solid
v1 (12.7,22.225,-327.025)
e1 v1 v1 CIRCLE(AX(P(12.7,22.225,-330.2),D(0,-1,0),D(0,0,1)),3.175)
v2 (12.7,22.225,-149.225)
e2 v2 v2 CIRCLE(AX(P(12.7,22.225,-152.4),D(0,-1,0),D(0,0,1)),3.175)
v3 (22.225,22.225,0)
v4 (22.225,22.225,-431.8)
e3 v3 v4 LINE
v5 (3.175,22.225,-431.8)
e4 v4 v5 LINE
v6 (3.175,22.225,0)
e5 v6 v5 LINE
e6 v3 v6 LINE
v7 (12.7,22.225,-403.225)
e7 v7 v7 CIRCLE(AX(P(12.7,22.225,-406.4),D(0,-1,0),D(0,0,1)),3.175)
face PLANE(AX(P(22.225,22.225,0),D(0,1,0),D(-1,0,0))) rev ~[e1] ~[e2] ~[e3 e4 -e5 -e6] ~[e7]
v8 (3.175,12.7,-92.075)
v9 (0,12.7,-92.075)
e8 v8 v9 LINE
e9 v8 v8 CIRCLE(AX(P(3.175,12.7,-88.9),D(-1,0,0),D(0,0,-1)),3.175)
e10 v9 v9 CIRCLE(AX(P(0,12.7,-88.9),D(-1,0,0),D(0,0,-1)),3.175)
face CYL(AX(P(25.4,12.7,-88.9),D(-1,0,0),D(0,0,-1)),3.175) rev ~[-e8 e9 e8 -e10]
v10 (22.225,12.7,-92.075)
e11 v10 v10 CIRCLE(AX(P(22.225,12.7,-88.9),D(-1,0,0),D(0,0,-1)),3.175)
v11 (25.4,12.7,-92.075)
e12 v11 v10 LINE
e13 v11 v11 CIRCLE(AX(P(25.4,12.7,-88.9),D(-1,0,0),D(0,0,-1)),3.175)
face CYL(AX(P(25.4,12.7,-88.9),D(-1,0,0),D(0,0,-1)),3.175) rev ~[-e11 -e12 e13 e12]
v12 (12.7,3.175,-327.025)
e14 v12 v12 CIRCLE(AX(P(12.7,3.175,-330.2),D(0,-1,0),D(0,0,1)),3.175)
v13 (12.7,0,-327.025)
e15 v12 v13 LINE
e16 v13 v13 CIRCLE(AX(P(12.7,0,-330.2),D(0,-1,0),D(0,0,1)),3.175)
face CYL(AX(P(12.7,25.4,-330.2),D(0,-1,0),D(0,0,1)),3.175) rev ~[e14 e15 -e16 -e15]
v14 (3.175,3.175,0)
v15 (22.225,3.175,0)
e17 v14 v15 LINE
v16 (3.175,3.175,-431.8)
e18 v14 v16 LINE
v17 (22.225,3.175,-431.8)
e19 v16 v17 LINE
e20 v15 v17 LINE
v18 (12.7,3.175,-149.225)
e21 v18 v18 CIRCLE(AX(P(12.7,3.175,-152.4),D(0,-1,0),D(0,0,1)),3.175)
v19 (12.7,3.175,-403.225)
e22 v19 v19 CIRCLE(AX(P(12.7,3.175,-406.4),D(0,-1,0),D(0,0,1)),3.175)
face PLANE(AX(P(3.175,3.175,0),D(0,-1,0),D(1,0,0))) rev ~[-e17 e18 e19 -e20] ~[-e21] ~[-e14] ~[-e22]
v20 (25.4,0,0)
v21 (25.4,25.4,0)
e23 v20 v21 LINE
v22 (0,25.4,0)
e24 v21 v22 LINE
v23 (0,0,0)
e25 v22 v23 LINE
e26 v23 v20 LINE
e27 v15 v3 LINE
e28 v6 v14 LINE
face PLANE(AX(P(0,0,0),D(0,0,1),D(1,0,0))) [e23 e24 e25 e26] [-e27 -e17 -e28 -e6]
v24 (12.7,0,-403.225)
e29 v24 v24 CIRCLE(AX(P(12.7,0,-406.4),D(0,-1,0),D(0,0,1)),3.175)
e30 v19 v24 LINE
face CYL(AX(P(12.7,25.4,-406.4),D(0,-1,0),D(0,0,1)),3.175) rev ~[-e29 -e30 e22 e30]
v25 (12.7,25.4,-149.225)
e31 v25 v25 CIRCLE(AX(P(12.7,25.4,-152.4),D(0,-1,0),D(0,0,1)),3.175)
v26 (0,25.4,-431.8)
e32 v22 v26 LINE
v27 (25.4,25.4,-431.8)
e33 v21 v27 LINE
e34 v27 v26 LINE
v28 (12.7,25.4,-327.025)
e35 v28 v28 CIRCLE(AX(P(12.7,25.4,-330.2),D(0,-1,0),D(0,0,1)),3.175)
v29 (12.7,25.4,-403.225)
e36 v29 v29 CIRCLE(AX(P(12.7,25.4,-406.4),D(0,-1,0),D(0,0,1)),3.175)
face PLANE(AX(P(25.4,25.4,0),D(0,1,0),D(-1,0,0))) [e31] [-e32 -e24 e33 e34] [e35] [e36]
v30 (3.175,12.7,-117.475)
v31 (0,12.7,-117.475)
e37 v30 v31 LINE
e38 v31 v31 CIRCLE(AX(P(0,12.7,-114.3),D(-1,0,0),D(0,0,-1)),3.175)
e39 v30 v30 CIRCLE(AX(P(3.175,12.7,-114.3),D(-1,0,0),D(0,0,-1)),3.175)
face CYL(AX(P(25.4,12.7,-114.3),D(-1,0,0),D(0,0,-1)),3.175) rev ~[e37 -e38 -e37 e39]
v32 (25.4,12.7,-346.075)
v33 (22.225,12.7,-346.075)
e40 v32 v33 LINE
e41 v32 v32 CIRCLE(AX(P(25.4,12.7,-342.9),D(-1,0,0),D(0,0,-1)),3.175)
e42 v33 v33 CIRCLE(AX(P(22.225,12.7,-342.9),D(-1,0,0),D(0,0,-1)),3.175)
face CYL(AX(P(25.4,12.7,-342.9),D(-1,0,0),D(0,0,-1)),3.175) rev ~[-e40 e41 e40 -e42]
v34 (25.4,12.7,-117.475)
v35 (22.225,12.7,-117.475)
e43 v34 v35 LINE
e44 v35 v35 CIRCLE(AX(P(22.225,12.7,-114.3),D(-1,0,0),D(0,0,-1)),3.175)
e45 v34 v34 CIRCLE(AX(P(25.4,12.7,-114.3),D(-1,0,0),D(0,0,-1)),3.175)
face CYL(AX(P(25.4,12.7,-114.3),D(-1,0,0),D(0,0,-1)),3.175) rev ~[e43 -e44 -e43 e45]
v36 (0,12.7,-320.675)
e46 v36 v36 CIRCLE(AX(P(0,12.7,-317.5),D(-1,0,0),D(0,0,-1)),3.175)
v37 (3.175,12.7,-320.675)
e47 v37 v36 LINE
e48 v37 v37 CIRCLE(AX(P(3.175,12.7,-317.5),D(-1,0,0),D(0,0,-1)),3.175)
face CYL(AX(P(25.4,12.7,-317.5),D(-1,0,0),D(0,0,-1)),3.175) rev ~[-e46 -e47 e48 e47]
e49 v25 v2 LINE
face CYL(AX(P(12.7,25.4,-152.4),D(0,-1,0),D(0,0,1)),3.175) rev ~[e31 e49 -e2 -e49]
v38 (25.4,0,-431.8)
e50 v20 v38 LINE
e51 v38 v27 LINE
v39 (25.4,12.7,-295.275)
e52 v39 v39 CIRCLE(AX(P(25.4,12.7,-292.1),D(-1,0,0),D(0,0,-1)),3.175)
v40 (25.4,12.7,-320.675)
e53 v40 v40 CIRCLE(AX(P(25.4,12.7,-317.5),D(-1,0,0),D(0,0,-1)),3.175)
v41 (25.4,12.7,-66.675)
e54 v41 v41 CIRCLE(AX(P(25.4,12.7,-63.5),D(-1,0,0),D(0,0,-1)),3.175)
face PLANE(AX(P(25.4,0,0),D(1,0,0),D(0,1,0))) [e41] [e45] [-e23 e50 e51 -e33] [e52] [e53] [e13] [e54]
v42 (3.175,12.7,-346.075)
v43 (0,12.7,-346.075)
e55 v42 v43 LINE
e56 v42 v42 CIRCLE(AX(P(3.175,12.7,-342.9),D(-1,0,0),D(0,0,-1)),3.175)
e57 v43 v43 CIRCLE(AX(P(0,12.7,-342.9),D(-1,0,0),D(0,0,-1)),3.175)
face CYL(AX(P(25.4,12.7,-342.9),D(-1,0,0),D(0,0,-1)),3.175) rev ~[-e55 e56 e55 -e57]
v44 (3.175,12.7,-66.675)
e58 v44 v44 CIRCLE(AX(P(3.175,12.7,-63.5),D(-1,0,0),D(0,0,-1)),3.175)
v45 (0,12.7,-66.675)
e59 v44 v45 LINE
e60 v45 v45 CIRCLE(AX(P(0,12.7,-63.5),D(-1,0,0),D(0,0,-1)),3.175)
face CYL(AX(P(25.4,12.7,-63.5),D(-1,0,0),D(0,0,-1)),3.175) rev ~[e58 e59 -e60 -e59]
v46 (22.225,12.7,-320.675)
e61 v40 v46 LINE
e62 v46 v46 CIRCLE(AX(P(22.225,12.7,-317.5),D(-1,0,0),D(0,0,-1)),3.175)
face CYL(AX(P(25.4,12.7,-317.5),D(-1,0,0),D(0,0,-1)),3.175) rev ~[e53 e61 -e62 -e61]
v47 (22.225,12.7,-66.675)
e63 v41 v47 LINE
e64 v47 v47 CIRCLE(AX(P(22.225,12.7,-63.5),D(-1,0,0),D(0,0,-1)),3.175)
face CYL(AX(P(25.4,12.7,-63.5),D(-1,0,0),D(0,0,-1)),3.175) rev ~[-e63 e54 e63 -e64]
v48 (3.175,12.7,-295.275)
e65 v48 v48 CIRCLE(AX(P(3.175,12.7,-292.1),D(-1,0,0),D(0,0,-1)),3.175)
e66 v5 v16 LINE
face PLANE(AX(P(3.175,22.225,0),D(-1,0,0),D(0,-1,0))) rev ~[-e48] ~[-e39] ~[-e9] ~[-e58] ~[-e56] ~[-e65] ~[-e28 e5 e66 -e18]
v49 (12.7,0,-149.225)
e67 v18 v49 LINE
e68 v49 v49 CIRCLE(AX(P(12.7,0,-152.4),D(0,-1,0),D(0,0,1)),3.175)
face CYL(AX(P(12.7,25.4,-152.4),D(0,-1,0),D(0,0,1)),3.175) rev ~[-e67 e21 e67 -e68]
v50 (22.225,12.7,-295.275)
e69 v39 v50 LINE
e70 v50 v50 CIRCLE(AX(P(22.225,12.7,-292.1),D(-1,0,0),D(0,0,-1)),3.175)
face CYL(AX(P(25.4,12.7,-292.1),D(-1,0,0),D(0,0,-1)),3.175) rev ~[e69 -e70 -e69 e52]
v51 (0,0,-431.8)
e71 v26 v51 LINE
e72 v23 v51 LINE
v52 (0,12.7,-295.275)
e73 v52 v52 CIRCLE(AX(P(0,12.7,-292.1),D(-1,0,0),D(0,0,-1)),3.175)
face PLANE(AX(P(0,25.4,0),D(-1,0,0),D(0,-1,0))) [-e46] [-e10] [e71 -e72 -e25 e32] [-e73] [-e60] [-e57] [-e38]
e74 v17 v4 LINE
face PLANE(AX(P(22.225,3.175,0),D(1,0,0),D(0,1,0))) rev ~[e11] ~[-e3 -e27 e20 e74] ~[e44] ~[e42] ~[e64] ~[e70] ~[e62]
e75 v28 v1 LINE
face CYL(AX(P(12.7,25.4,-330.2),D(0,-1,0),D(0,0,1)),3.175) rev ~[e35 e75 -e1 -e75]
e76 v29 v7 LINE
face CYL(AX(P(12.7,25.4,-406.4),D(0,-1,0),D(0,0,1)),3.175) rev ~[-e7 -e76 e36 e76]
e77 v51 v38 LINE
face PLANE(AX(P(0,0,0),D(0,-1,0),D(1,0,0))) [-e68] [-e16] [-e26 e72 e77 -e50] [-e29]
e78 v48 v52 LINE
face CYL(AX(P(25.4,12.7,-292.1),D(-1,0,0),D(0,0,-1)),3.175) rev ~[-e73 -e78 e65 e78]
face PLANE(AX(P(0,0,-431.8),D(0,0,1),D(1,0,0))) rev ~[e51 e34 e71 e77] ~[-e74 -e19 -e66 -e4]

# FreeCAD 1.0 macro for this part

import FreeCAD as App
import Part
import Sketcher
from FreeCAD import Vector
Q = App.Units.Quantity

doc = App.newDocument("Part")
body = doc.addObject("PartDesign::Body", "Body")

# Sketch on XY plane
sketch1 = doc.addObject("Sketcher::SketchObject", "Sketch")
body.addObject(sketch1)
sketch1.AttachmentSupport = (doc.XY_Plane, [""])
sketch1.MapMode = "FlatFace"
sketch1.addGeometry(Part.LineSegment(Vector(0, 25.4, 0), Vector(0, 0, 0)), False)
sketch1.addGeometry(Part.LineSegment(Vector(0, 0, 0), Vector(25.4, 0, 0)), False)
sketch1.addGeometry(Part.LineSegment(Vector(25.4, 0, 0), Vector(25.4, 25.4, 0)), False)
sketch1.addGeometry(Part.LineSegment(Vector(25.4, 25.4, 0), Vector(0, 25.4, 0)), False)
sketch1.addGeometry(Part.LineSegment(Vector(22.225, 3.175, 0), Vector(3.175, 3.175, 0)), False)
sketch1.addGeometry(Part.LineSegment(Vector(3.175, 3.175, 0), Vector(3.175, 22.225, 0)), False)
sketch1.addGeometry(Part.LineSegment(Vector(3.175, 22.225, 0), Vector(22.225, 22.225, 0)), False)
sketch1.addGeometry(Part.LineSegment(Vector(22.225, 22.225, 0), Vector(22.225, 3.175, 0)), False)
sketch1.addConstraint(Sketcher.Constraint("Coincident", 0, 2, 1, 1))
sketch1.addConstraint(Sketcher.Constraint("Coincident", 1, 2, 2, 1))
sketch1.addConstraint(Sketcher.Constraint("Coincident", 2, 2, 3, 1))
sketch1.addConstraint(Sketcher.Constraint("Coincident", 3, 2, 0, 1))
sketch1.addConstraint(Sketcher.Constraint("Coincident", 4, 2, 5, 1))
sketch1.addConstraint(Sketcher.Constraint("Coincident", 5, 2, 6, 1))
sketch1.addConstraint(Sketcher.Constraint("Coincident", 6, 2, 7, 1))
sketch1.addConstraint(Sketcher.Constraint("Coincident", 7, 2, 4, 1))
sketch1.addConstraint(Sketcher.Constraint("Vertical", 0))
sketch1.addConstraint(Sketcher.Constraint("Horizontal", 1))
sketch1.addConstraint(Sketcher.Constraint("Vertical", 2))
sketch1.addConstraint(Sketcher.Constraint("Horizontal", 3))
sketch1.addConstraint(Sketcher.Constraint("Horizontal", 4))
sketch1.addConstraint(Sketcher.Constraint("Vertical", 5))
sketch1.addConstraint(Sketcher.Constraint("Horizontal", 6))
sketch1.addConstraint(Sketcher.Constraint("Vertical", 7))
sketch1.addConstraint(Sketcher.Constraint("Coincident", 0, 2, -1, 1))
sketch1.addConstraint(Sketcher.Constraint("Equal", 3, 0))
sketch1.addConstraint(Sketcher.Constraint("Equal", 6, 5))
sketch1.addConstraint(Sketcher.Constraint("DistanceX", 1, 1, 1, 2, Q("1 in")))
sketch1.addConstraint(Sketcher.Constraint("DistanceX", -1, 1, 4, 2, Q("0.125 in")))
sketch1.addConstraint(Sketcher.Constraint("DistanceY", -1, 1, 4, 2, Q("0.125 in")))
sketch1.addConstraint(Sketcher.Constraint("DistanceY", 5, 2, 3, 2, Q("0.125 in")))
pad1 = doc.addObject("PartDesign::Pad", "Pad")
body.addObject(pad1)
pad1.Profile = sketch1
pad1.Length = Q("17 in")
pad1.Reversed = True

# Sketch on XZ plane
sketch2 = doc.addObject("Sketcher::SketchObject", "Sketch001")
body.addObject(sketch2)
sketch2.AttachmentSupport = (doc.XZ_Plane, [""])
sketch2.MapMode = "FlatFace"
sketch2.AttachmentOffset = App.Placement(Vector(0, 0, -1 * 25.4), App.Rotation())
sketch2.addGeometry(Part.Circle(Vector(12.7, -406.4, 0), Vector(0, 0, 1), 3.175), False)
sketch2.addGeometry(Part.Circle(Vector(12.7, -330.2, 0), Vector(0, 0, 1), 3.175), False)
sketch2.addGeometry(Part.Circle(Vector(12.7, -152.4, 0), Vector(0, 0, 1), 3.175), False)
sketch2.addConstraint(Sketcher.Constraint("Equal", 0, 1))
sketch2.addConstraint(Sketcher.Constraint("Equal", 1, 2))
sketch2.addConstraint(Sketcher.Constraint("Vertical", 0, 3, 1, 3))
sketch2.addConstraint(Sketcher.Constraint("Vertical", 1, 3, 2, 3))
sketch2.addConstraint(Sketcher.Constraint("Diameter", 0, Q("0.25 in")))
sketch2.addConstraint(Sketcher.Constraint("DistanceY", 0, 3, -1, 1, Q("16 in")))
sketch2.addConstraint(Sketcher.Constraint("DistanceY", 1, 3, -1, 1, Q("13 in")))
sketch2.addConstraint(Sketcher.Constraint("DistanceY", 2, 3, -1, 1, Q("6 in")))
sketch2.addConstraint(Sketcher.Constraint("DistanceX", -1, 1, 0, 3, Q("0.5 in")))
doc.recompute()
hole = doc.addObject("PartDesign::Hole", "Hole")
body.addObject(hole)
hole.Profile = sketch2
hole.ThreadType = "None"
hole.Diameter = Q("0.25 in")
hole.DepthType = "Dimension"
hole.Depth = Q("1 in")
hole.DrillPoint = "Angled"
hole.DrillPointAngle = 118
hole.Reversed = True

# Sketch on YZ plane
sketch3 = doc.addObject("Sketcher::SketchObject", "Sketch002")
body.addObject(sketch3)
sketch3.AttachmentSupport = (doc.YZ_Plane, [""])
sketch3.MapMode = "FlatFace"
sketch3.AttachmentOffset = App.Placement(Vector(0, 0, 1 * 25.4), App.Rotation())
sketch3.addGeometry(Part.Circle(Vector(12.7, -63.5, 0), Vector(0, 0, 1), 3.175), False)
sketch3.addGeometry(Part.Circle(Vector(12.7, -88.9, 0), Vector(0, 0, 1), 3.175), False)
sketch3.addGeometry(Part.Circle(Vector(12.7, -114.3, 0), Vector(0, 0, 1), 3.175), False)
sketch3.addConstraint(Sketcher.Constraint("Equal", 0, 1))
sketch3.addConstraint(Sketcher.Constraint("Equal", 1, 2))
sketch3.addConstraint(Sketcher.Constraint("Vertical", 0, 3, 1, 3))
sketch3.addConstraint(Sketcher.Constraint("Vertical", 1, 3, 2, 3))
sketch3.addConstraint(Sketcher.Constraint("Diameter", 0, Q("0.25 in")))
sketch3.addConstraint(Sketcher.Constraint("DistanceY", 1, 3, 0, 3, Q("1 in")))
sketch3.addConstraint(Sketcher.Constraint("DistanceY", 2, 3, 1, 3, Q("1 in")))
sketch3.addConstraint(Sketcher.Constraint("DistanceX", -1, 1, 0, 3, Q("0.5 in")))
sketch3.addConstraint(Sketcher.Constraint("DistanceY", 0, 3, -1, 1, Q("2.5 in")))
doc.recompute()
hole2 = doc.addObject("PartDesign::Hole", "Hole001")
body.addObject(hole2)
hole2.Profile = sketch3
hole2.ThreadType = "None"
hole2.Diameter = Q("0.25 in")
hole2.DepthType = "Dimension"
hole2.Depth = Q("1 in")
hole2.DrillPoint = "Angled"
hole2.DrillPointAngle = 118

# Sketch on YZ plane
sketch4 = doc.addObject("Sketcher::SketchObject", "Sketch003")
body.addObject(sketch4)
sketch4.AttachmentSupport = (doc.YZ_Plane, [""])
sketch4.MapMode = "FlatFace"
sketch4.AttachmentOffset = App.Placement(Vector(0, 0, 1 * 25.4), App.Rotation())
sketch4.addGeometry(Part.Circle(Vector(12.7, -342.9, 0), Vector(0, 0, 1), 3.175), False)
sketch4.addGeometry(Part.Circle(Vector(12.7, -317.5, 0), Vector(0, 0, 1), 3.175), False)
sketch4.addGeometry(Part.Circle(Vector(12.7, -292.1, 0), Vector(0, 0, 1), 3.175), False)
sketch4.addConstraint(Sketcher.Constraint("Equal", 0, 1))
sketch4.addConstraint(Sketcher.Constraint("Equal", 1, 2))
sketch4.addConstraint(Sketcher.Constraint("Vertical", 0, 3, 1, 3))
sketch4.addConstraint(Sketcher.Constraint("Vertical", 1, 3, 2, 3))
sketch4.addConstraint(Sketcher.Constraint("Diameter", 0, Q("0.25 in")))
sketch4.addConstraint(Sketcher.Constraint("DistanceY", 0, 3, 1, 3, Q("1 in")))
sketch4.addConstraint(Sketcher.Constraint("DistanceY", 1, 3, 2, 3, Q("1 in")))
sketch4.addConstraint(Sketcher.Constraint("DistanceX", -1, 1, 0, 3, Q("0.5 in")))
sketch4.addConstraint(Sketcher.Constraint("DistanceY", 0, 3, -1, 1, Q("13.5 in")))
doc.recompute()
hole3 = doc.addObject("PartDesign::Hole", "Hole002")
body.addObject(hole3)
hole3.Profile = sketch4
hole3.ThreadType = "None"
hole3.Diameter = Q("0.25 in")
hole3.DepthType = "Dimension"
hole3.Depth = Q("1 in")
hole3.DrillPoint = "Angled"
hole3.DrillPointAngle = 118

doc.recompute()
